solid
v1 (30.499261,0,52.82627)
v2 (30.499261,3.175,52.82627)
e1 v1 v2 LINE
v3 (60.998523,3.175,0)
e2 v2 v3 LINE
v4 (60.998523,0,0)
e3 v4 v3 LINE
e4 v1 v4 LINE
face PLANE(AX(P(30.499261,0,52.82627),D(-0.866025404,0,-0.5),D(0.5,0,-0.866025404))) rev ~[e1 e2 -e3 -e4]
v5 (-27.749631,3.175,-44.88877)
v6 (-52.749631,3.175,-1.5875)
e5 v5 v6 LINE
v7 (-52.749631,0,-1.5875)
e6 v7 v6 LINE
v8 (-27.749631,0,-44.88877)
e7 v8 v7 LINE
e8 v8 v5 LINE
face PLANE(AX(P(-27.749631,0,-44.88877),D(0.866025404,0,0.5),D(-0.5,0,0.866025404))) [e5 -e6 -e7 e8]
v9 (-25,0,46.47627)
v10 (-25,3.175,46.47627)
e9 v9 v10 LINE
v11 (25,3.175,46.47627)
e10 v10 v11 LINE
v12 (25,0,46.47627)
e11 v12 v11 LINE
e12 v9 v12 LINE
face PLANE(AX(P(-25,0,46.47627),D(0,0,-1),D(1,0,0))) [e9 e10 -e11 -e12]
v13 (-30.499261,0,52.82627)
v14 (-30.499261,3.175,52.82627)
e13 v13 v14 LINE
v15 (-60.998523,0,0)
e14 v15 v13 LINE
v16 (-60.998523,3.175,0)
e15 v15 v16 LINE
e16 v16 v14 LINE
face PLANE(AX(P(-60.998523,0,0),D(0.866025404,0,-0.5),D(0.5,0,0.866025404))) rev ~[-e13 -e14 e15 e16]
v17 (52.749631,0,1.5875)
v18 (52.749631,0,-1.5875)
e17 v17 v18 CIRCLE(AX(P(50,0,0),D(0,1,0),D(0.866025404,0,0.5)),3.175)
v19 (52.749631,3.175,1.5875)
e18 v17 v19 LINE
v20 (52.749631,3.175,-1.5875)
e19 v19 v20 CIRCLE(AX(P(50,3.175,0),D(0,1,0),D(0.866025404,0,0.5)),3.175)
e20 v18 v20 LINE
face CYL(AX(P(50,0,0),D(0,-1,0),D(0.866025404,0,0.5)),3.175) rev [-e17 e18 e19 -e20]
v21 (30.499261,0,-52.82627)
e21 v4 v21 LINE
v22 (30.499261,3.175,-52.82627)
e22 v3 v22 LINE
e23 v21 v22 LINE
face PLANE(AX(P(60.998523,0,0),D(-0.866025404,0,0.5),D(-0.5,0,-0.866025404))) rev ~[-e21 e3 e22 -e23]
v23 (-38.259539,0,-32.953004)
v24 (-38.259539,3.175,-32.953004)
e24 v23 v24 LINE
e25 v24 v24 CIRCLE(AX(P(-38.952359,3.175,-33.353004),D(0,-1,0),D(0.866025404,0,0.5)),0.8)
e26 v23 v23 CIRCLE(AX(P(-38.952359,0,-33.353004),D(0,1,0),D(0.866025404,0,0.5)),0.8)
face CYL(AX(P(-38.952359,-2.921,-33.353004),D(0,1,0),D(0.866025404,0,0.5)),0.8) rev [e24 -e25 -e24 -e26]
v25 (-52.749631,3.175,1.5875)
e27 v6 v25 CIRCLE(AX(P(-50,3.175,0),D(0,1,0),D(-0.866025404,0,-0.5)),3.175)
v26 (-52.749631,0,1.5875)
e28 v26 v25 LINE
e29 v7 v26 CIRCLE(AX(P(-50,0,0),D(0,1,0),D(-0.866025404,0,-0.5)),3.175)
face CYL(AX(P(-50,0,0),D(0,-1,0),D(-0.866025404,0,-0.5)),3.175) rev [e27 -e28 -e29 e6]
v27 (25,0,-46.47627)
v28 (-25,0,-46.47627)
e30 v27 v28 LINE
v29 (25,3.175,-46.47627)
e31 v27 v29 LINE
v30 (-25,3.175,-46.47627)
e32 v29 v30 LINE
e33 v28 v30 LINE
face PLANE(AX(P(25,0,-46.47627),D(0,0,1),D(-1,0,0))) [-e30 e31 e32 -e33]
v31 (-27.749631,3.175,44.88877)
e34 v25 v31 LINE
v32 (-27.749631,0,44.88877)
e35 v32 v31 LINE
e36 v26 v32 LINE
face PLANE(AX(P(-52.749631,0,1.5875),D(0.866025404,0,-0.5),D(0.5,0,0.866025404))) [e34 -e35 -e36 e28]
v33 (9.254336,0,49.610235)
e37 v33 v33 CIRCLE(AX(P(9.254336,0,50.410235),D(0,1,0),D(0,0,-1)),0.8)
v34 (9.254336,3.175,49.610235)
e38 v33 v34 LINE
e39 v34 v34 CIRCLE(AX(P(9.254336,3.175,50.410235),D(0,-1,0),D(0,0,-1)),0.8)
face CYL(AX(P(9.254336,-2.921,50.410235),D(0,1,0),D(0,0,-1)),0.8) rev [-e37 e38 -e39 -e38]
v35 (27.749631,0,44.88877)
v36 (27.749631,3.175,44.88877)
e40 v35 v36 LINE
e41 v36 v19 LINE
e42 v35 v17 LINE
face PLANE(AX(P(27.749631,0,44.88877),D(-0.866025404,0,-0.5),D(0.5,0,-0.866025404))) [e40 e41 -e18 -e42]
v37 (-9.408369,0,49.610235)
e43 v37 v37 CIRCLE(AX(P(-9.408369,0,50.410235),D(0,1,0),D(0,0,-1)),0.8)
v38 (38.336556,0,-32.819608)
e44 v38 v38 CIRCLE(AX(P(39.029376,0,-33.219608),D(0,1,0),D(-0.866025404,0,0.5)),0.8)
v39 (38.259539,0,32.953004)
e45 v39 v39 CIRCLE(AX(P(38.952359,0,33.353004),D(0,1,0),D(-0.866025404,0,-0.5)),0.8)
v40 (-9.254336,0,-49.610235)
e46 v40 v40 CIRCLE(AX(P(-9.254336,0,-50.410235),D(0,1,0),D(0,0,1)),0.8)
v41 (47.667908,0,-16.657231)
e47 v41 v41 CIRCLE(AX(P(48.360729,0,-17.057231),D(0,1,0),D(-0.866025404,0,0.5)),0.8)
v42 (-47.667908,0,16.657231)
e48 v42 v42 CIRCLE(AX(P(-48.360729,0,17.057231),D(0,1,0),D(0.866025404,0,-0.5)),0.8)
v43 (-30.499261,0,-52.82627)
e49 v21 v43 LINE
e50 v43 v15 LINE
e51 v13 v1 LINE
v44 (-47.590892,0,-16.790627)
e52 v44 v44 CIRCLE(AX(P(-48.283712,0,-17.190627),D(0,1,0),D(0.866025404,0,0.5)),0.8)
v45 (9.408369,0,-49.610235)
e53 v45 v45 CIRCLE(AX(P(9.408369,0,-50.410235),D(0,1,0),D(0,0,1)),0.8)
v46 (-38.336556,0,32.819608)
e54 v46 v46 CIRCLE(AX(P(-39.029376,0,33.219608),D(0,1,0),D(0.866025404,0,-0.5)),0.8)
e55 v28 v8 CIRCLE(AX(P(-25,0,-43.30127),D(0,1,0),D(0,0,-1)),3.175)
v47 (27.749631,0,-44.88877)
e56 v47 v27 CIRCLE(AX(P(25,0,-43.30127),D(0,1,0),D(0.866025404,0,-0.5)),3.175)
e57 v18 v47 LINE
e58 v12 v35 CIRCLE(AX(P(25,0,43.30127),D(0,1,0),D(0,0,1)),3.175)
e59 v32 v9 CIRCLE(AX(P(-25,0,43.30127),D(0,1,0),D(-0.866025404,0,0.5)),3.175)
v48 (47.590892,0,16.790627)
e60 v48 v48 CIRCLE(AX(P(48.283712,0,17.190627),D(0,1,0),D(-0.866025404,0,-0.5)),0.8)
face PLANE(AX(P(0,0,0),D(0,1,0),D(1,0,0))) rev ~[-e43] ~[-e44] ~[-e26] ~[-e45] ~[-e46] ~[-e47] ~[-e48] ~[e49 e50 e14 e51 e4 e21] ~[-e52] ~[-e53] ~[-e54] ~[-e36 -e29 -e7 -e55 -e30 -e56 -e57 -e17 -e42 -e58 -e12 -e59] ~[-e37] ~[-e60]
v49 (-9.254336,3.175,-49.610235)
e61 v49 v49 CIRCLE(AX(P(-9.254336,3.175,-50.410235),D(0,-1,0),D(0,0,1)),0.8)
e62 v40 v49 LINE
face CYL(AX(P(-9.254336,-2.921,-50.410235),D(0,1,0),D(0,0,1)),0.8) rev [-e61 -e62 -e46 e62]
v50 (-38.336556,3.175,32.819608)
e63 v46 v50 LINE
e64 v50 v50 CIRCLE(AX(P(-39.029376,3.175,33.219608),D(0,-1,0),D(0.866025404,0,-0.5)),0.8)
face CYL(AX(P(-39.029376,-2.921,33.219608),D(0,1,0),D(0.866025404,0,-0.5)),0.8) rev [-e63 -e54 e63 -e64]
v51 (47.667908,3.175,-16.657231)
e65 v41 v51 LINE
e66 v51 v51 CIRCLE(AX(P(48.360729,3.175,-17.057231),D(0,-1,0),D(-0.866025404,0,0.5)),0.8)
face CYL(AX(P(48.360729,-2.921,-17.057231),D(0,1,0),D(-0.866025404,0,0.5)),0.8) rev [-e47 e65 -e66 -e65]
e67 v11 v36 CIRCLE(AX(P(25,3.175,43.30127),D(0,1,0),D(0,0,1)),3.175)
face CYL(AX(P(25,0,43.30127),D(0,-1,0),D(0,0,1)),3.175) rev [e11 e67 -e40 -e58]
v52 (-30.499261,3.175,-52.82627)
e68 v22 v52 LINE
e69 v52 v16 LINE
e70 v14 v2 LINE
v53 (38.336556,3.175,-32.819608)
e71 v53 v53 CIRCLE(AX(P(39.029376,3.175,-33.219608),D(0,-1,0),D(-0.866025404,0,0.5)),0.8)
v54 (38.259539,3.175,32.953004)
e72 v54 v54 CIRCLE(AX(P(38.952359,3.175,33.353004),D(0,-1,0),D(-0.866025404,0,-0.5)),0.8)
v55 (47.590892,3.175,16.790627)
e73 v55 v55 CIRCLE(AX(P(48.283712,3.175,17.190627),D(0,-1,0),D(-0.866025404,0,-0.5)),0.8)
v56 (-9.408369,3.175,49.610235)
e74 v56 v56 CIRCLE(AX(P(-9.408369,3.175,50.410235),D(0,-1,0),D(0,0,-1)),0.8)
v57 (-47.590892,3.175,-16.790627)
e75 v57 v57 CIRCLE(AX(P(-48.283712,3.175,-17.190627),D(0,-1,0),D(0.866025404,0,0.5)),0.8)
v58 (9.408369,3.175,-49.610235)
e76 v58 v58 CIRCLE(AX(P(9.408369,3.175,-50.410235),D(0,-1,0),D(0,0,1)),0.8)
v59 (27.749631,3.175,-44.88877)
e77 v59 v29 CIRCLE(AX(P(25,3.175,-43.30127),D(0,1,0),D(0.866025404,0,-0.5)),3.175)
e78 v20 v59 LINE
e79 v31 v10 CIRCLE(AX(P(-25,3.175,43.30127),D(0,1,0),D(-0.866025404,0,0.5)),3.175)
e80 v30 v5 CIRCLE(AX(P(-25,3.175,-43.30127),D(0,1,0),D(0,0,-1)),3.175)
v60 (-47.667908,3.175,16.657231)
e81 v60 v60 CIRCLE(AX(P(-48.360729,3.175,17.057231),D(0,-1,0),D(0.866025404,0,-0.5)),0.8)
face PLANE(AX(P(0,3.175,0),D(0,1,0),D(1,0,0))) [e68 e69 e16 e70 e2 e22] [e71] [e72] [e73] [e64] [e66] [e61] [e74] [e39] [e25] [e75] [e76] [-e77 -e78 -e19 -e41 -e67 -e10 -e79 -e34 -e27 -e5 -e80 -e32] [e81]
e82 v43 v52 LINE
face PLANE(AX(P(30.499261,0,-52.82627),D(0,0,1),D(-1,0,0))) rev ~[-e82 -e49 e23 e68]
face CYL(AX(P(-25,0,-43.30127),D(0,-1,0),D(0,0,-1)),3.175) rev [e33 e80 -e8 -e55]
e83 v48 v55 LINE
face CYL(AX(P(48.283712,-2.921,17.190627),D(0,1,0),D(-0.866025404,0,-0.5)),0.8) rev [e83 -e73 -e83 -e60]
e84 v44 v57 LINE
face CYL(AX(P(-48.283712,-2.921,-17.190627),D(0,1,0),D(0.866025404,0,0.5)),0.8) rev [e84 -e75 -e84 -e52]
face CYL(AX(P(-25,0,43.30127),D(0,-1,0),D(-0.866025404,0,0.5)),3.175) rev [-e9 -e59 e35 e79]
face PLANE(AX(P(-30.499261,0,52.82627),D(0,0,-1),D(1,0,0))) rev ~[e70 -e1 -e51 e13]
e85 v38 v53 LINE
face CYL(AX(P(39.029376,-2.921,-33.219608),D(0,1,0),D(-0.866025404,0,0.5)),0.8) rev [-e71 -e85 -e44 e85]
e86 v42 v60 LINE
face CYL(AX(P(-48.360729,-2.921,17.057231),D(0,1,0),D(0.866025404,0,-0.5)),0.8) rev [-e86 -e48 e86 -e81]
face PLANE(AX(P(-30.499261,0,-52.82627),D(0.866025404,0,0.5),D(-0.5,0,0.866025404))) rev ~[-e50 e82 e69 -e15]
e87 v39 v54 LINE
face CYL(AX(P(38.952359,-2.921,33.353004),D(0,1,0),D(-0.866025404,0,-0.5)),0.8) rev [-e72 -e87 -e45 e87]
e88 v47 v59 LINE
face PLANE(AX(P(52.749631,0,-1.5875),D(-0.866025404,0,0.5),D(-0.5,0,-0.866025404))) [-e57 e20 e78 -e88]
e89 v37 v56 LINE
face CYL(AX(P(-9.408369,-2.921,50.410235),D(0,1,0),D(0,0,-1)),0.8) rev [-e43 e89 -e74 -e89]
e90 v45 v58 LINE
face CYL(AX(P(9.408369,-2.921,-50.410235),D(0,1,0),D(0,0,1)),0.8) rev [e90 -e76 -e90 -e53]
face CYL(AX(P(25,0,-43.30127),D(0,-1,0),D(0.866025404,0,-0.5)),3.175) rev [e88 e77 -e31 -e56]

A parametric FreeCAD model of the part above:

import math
import FreeCAD as App
import Part
import Sketcher
Q = App.Units.Quantity


def add_polygon(sketch, points):
    """Adds a closed chain of lines whose ends are joined by coincident constraints."""
    first, n = sketch.GeometryCount, len(points)
    for a, b in zip(points, points[1:] + points[:1]):
        sketch.addGeometry(Part.LineSegment(App.Vector(*a, 0), App.Vector(*b, 0)), False)
    for i in range(n):
        sketch.addConstraint(Sketcher.Constraint("Coincident", first + i, 2, first + (i + 1) % n, 1))

doc = App.newDocument("Part")
body = doc.addObject("PartDesign::Body", "Body")

sketch1 = body.newObject("Sketcher::SketchObject", "Sketch")
sketch1.AttachmentSupport = (doc.getObject("XZ_Plane"), [""])
sketch1.MapMode = "FlatFace"
add_polygon(sketch1, [(60.998523, 0), (30.499261, -52.82627), (-30.499261, -52.82627), (-60.998523, 0), (-30.499261, 52.82627), (30.499261, 52.82627)])
sketch1.addGeometry(Part.LineSegment(App.Vector(27.749631, -44.88877, 0), App.Vector(52.749631, -1.5875, 0)), False)
sketch1.addGeometry(Part.ArcOfCircle(Part.Circle(App.Vector(50, 0, 0), App.Vector(0, 0, 1), 3.175), math.radians(-30), math.radians(30)), False)
sketch1.addGeometry(Part.LineSegment(App.Vector(52.749631, 1.5875, 0), App.Vector(27.749631, 44.88877, 0)), False)
sketch1.addGeometry(Part.ArcOfCircle(Part.Circle(App.Vector(25, 43.30127, 0), App.Vector(0, 0, 1), 3.175), math.radians(30), math.radians(90)), False)
sketch1.addGeometry(Part.LineSegment(App.Vector(25, 46.47627, 0), App.Vector(-25, 46.47627, 0)), False)
sketch1.addGeometry(Part.ArcOfCircle(Part.Circle(App.Vector(-25, 43.30127, 0), App.Vector(0, 0, 1), 3.175), math.radians(90), math.radians(150)), False)
sketch1.addGeometry(Part.LineSegment(App.Vector(-27.749631, 44.88877, 0), App.Vector(-52.749631, 1.5875, 0)), False)
sketch1.addGeometry(Part.ArcOfCircle(Part.Circle(App.Vector(-50, 0, 0), App.Vector(0, 0, 1), 3.175), math.radians(150), math.radians(210)), False)
sketch1.addGeometry(Part.LineSegment(App.Vector(-52.749631, -1.5875, 0), App.Vector(-27.749631, -44.88877, 0)), False)
sketch1.addGeometry(Part.ArcOfCircle(Part.Circle(App.Vector(-25, -43.30127, 0), App.Vector(0, 0, 1), 3.175), math.radians(-150), math.radians(-90)), False)
sketch1.addGeometry(Part.LineSegment(App.Vector(-25, -46.47627, 0), App.Vector(25, -46.47627, 0)), False)
sketch1.addGeometry(Part.ArcOfCircle(Part.Circle(App.Vector(25, -43.30127, 0), App.Vector(0, 0, 1), 3.175), math.radians(-90), math.radians(-30)), False)
sketch1.addConstraint(Sketcher.Constraint("Tangent", 6, 2, 7, 1))
sketch1.addConstraint(Sketcher.Constraint("Tangent", 7, 2, 8, 1))
sketch1.addConstraint(Sketcher.Constraint("Tangent", 8, 2, 9, 1))
sketch1.addConstraint(Sketcher.Constraint("Tangent", 9, 2, 10, 1))
sketch1.addConstraint(Sketcher.Constraint("Tangent", 10, 2, 11, 1))
sketch1.addConstraint(Sketcher.Constraint("Tangent", 11, 2, 12, 1))
sketch1.addConstraint(Sketcher.Constraint("Tangent", 12, 2, 13, 1))
sketch1.addConstraint(Sketcher.Constraint("Tangent", 13, 2, 14, 1))
sketch1.addConstraint(Sketcher.Constraint("Tangent", 14, 2, 15, 1))
sketch1.addConstraint(Sketcher.Constraint("Tangent", 15, 2, 16, 1))
sketch1.addConstraint(Sketcher.Constraint("Tangent", 16, 2, 17, 1))
sketch1.addConstraint(Sketcher.Constraint("Tangent", 17, 2, 6, 1))
sketch1.addConstraint(Sketcher.Constraint("Horizontal", 1))
sketch1.addConstraint(Sketcher.Constraint("Horizontal", 4))
sketch1.addConstraint(Sketcher.Constraint("Horizontal", 10))
sketch1.addConstraint(Sketcher.Constraint("Horizontal", 16))
sketch1.addConstraint(Sketcher.Constraint("Equal", 7, 9))
sketch1.addConstraint(Sketcher.Constraint("Equal", 9, 11))
sketch1.addConstraint(Sketcher.Constraint("Equal", 11, 13))
sketch1.addConstraint(Sketcher.Constraint("Equal", 13, 15))
sketch1.addConstraint(Sketcher.Constraint("Equal", 15, 17))
sketch1.addConstraint(Sketcher.Constraint("Symmetric", 7, 3, 13, 3, -1, 1))
sketch1.addConstraint(Sketcher.Constraint("Symmetric", 9, 3, 15, 3, -1, 1))
sketch1.addConstraint(Sketcher.Constraint("Symmetric", 0, 2, 3, 2, -1, 1))
sketch1.addConstraint(Sketcher.Constraint("Symmetric", 2, 2, 5, 2, -1, 1))
sketch1.addConstraint(Sketcher.Constraint("Symmetric", 8, 2, 11, 2, -2))
sketch1.addConstraint(Sketcher.Constraint("PointOnObject", 2, 2, -1))
sketch1.addConstraint(Sketcher.Constraint("Parallel", 2, 5))
sketch1.addConstraint(Sketcher.Constraint("Parallel", 3, 6))
sketch1.addConstraint(Sketcher.Constraint("Parallel", 5, 8))
sketch1.addConstraint(Sketcher.Constraint("Parallel", 6, 12))
sketch1.addConstraint(Sketcher.Constraint("Angle", 0, Q("-120 deg")))
sketch1.addConstraint(Sketcher.Constraint("Radius", 7, Q("0.125 in")))
sketch1.addConstraint(Sketcher.Constraint("DistanceY", 9, 2, 4, 2, Q("0.25 in")))
sketch1.addConstraint(Sketcher.Constraint("DistanceX", 10, 2, 10, 1, 50.0))
sketch1.addConstraint(Sketcher.Constraint("Distance", 6, 50.0))
sketch1.addConstraint(Sketcher.Constraint("DistanceX", 1, 2, 1, 1, 60.998523))
pad1 = body.newObject("PartDesign::Pad", "Pad")
pad1.Profile = sketch1
pad1.Length = Q("0.125 in")
pad1.Reversed = True

sketch2 = body.newObject("Sketcher::SketchObject", "Sketch001")
sketch2.AttachmentSupport = (doc.getObject("YZ_Plane"), [""])
sketch2.MapMode = "FlatFace"
sketch2.AttachmentOffset = App.Placement(App.Vector(0, 0, 9.408369), App.Rotation())
add_polygon(sketch2, [(-3.401688, -50.410235), (3.175, -50.410235), (3.175, -49.610235), (-2.921, -49.610235)])
sketch2.addGeometry(Part.LineSegment(App.Vector(3.175, -50.410235, 0), App.Vector(-3.401688, -50.410235, 0)), True)
sketch2.addConstraint(Sketcher.Constraint("Horizontal", 0))
sketch2.addConstraint(Sketcher.Constraint("Vertical", 1))
sketch2.addConstraint(Sketcher.Constraint("Horizontal", 2))
sketch2.addConstraint(Sketcher.Constraint("Horizontal", 4))
sketch2.addConstraint(Sketcher.Constraint("Coincident", 4, 1, 0, 2))
sketch2.addConstraint(Sketcher.Constraint("Equal", 0, 4))
sketch2.addConstraint(Sketcher.Constraint("Angle", 3, Q("-121 deg")))
sketch2.addConstraint(Sketcher.Constraint("DistanceX", 2, 2, 2, 1, Q("0.24 in")))
sketch2.addConstraint(Sketcher.Constraint("DistanceX", -1, 1, 0, 2, Q("0.125 in")))
sketch2.addConstraint(Sketcher.Constraint("DistanceY", 1, 1, 1, 2, 0.8))
sketch2.addConstraint(Sketcher.Constraint("DistanceY", 0, 2, -1, 1, 50.410235))
groove = body.newObject("PartDesign::Groove", "Groove")
groove.Profile = sketch2
groove.ReferenceAxis = (sketch2, ["Axis0"])
groove.Angle = 360
doc.recompute()

linearpattern = body.newObject("PartDesign::LinearPattern", "LinearPattern")
linearpattern.Originals = [groove]
linearpattern.Direction = (doc.getObject("X_Axis"), [""])
linearpattern.Mode = "offset"
linearpattern.Offset = 18.662705
linearpattern.Occurrences = 2
linearpattern.Reversed = True
body.Tip = linearpattern
doc.recompute()

polarpattern = body.newObject("PartDesign::PolarPattern", "PolarPattern")
polarpattern.Originals = [groove]
polarpattern.Axis = (doc.getObject("Y_Axis"), [""])
polarpattern.Angle = 360
polarpattern.Occurrences = 6
body.Tip = polarpattern

sketch3 = body.newObject("Sketcher::SketchObject", "Sketch002")
sketch3.Placement = App.Placement(App.Vector(-48.283712, 3.175, -17.190627), App.Rotation(App.Vector(0.866025404, 0, 0.5), App.Vector(0, -1, 0), App.Vector(0.5, 0, -0.866025404), "ZXY"))
add_polygon(sketch3, [(0, 6.576689), (0, 0), (0.8, 0), (0.8, 6.096)])
sketch3.addConstraint(Sketcher.Constraint("Vertical", 0))
sketch3.addConstraint(Sketcher.Constraint("Horizontal", 1))
sketch3.addConstraint(Sketcher.Constraint("Vertical", 2))
sketch3.addConstraint(Sketcher.Constraint("Coincident", 0, 2, -1, 1))
sketch3.addConstraint(Sketcher.Constraint("Angle", 3, Q("149 deg")))
sketch3.addConstraint(Sketcher.Constraint("DistanceY", 2, 1, 2, 2, Q("0.24 in")))
sketch3.addConstraint(Sketcher.Constraint("DistanceX", 1, 1, 1, 2, 0.8))
groove2 = body.newObject("PartDesign::Groove", "Groove001")
groove2.Profile = sketch3
groove2.ReferenceAxis = (sketch3, ["V_Axis"])
groove2.Angle = 360

sketch4 = body.newObject("Sketcher::SketchObject", "Sketch003")
sketch4.Placement = App.Placement(App.Vector(-39.029376, 3.175, 33.219608), App.Rotation(App.Vector(0.866025404, 0, -0.5), App.Vector(0, -1, 0), App.Vector(-0.5, 0, -0.866025404), "ZXY"))
add_polygon(sketch4, [(0, 6.576689), (0, 0), (0.8, 0), (0.8, 6.096)])
sketch4.addConstraint(Sketcher.Constraint("Vertical", 0))
sketch4.addConstraint(Sketcher.Constraint("Horizontal", 1))
sketch4.addConstraint(Sketcher.Constraint("Vertical", 2))
sketch4.addConstraint(Sketcher.Constraint("Coincident", 0, 2, -1, 1))
sketch4.addConstraint(Sketcher.Constraint("Angle", 3, Q("149 deg")))
sketch4.addConstraint(Sketcher.Constraint("DistanceY", 2, 1, 2, 2, Q("0.24 in")))
sketch4.addConstraint(Sketcher.Constraint("DistanceX", 1, 1, 1, 2, 0.8))
groove3 = body.newObject("PartDesign::Groove", "Groove002")
groove3.Profile = sketch4
groove3.ReferenceAxis = (sketch4, ["V_Axis"])
groove3.Angle = 360

sketch5 = body.newObject("Sketcher::SketchObject", "Sketch004")
sketch5.AttachmentSupport = (doc.getObject("YZ_Plane"), [""])
sketch5.MapMode = "FlatFace"
sketch5.AttachmentOffset = App.Placement(App.Vector(0, 0, 9.254336), App.Rotation())
add_polygon(sketch5, [(-3.401688, 50.410235), (3.175, 50.410235), (3.175, 49.610235), (-2.921, 49.610235)])
sketch5.addGeometry(Part.LineSegment(App.Vector(3.175, 50.410235, 0), App.Vector(-3.401688, 50.410235, 0)), True)
sketch5.addConstraint(Sketcher.Constraint("Horizontal", 0))
sketch5.addConstraint(Sketcher.Constraint("Vertical", 1))
sketch5.addConstraint(Sketcher.Constraint("Horizontal", 2))
sketch5.addConstraint(Sketcher.Constraint("Horizontal", 4))
sketch5.addConstraint(Sketcher.Constraint("Coincident", 4, 1, 0, 2))
sketch5.addConstraint(Sketcher.Constraint("Equal", 0, 4))
sketch5.addConstraint(Sketcher.Constraint("Angle", 3, Q("121 deg")))
sketch5.addConstraint(Sketcher.Constraint("DistanceX", 2, 2, 2, 1, Q("0.24 in")))
sketch5.addConstraint(Sketcher.Constraint("DistanceX", -1, 1, 0, 2, Q("0.125 in")))
sketch5.addConstraint(Sketcher.Constraint("DistanceY", 1, 2, 1, 1, 0.8))
sketch5.addConstraint(Sketcher.Constraint("DistanceY", -1, 1, 0, 2, 50.410235))
groove4 = body.newObject("PartDesign::Groove", "Groove003")
groove4.Profile = sketch5
groove4.ReferenceAxis = (sketch5, ["Axis0"])
groove4.Angle = 360

sketch6 = body.newObject("Sketcher::SketchObject", "Sketch005")
sketch6.Placement = App.Placement(App.Vector(48.283712, 3.175, 17.190627), App.Rotation(App.Vector(-0.866025404, 0, -0.5), App.Vector(0, -1, 0), App.Vector(-0.5, 0, 0.866025404), "ZXY"))
add_polygon(sketch6, [(0, 6.576689), (0, 0), (0.8, 0), (0.8, 6.096)])
sketch6.addConstraint(Sketcher.Constraint("Vertical", 0))
sketch6.addConstraint(Sketcher.Constraint("Horizontal", 1))
sketch6.addConstraint(Sketcher.Constraint("Vertical", 2))
sketch6.addConstraint(Sketcher.Constraint("Coincident", 0, 2, -1, 1))
sketch6.addConstraint(Sketcher.Constraint("Angle", 3, Q("149 deg")))
sketch6.addConstraint(Sketcher.Constraint("DistanceY", 2, 1, 2, 2, Q("0.24 in")))
sketch6.addConstraint(Sketcher.Constraint("DistanceX", 1, 1, 1, 2, 0.8))
groove5 = body.newObject("PartDesign::Groove", "Groove004")
groove5.Profile = sketch6
groove5.ReferenceAxis = (sketch6, ["V_Axis"])
groove5.Angle = 360

sketch7 = body.newObject("Sketcher::SketchObject", "Sketch006")
sketch7.Placement = App.Placement(App.Vector(39.029376, 3.175, -33.219608), App.Rotation(App.Vector(-0.866025404, 0, 0.5), App.Vector(0, -1, 0), App.Vector(0.5, 0, 0.866025404), "ZXY"))
add_polygon(sketch7, [(0, 6.576689), (0, 0), (0.8, 0), (0.8, 6.096)])
sketch7.addConstraint(Sketcher.Constraint("Vertical", 0))
sketch7.addConstraint(Sketcher.Constraint("Horizontal", 1))
sketch7.addConstraint(Sketcher.Constraint("Vertical", 2))
sketch7.addConstraint(Sketcher.Constraint("Coincident", 0, 2, -1, 1))
sketch7.addConstraint(Sketcher.Constraint("Angle", 3, Q("149 deg")))
sketch7.addConstraint(Sketcher.Constraint("DistanceY", 2, 1, 2, 2, Q("0.24 in")))
sketch7.addConstraint(Sketcher.Constraint("DistanceX", 1, 1, 1, 2, 0.8))
groove6 = body.newObject("PartDesign::Groove", "Groove005")
groove6.Profile = sketch7
groove6.ReferenceAxis = (sketch7, ["V_Axis"])
groove6.Angle = 360

doc.recompute()
